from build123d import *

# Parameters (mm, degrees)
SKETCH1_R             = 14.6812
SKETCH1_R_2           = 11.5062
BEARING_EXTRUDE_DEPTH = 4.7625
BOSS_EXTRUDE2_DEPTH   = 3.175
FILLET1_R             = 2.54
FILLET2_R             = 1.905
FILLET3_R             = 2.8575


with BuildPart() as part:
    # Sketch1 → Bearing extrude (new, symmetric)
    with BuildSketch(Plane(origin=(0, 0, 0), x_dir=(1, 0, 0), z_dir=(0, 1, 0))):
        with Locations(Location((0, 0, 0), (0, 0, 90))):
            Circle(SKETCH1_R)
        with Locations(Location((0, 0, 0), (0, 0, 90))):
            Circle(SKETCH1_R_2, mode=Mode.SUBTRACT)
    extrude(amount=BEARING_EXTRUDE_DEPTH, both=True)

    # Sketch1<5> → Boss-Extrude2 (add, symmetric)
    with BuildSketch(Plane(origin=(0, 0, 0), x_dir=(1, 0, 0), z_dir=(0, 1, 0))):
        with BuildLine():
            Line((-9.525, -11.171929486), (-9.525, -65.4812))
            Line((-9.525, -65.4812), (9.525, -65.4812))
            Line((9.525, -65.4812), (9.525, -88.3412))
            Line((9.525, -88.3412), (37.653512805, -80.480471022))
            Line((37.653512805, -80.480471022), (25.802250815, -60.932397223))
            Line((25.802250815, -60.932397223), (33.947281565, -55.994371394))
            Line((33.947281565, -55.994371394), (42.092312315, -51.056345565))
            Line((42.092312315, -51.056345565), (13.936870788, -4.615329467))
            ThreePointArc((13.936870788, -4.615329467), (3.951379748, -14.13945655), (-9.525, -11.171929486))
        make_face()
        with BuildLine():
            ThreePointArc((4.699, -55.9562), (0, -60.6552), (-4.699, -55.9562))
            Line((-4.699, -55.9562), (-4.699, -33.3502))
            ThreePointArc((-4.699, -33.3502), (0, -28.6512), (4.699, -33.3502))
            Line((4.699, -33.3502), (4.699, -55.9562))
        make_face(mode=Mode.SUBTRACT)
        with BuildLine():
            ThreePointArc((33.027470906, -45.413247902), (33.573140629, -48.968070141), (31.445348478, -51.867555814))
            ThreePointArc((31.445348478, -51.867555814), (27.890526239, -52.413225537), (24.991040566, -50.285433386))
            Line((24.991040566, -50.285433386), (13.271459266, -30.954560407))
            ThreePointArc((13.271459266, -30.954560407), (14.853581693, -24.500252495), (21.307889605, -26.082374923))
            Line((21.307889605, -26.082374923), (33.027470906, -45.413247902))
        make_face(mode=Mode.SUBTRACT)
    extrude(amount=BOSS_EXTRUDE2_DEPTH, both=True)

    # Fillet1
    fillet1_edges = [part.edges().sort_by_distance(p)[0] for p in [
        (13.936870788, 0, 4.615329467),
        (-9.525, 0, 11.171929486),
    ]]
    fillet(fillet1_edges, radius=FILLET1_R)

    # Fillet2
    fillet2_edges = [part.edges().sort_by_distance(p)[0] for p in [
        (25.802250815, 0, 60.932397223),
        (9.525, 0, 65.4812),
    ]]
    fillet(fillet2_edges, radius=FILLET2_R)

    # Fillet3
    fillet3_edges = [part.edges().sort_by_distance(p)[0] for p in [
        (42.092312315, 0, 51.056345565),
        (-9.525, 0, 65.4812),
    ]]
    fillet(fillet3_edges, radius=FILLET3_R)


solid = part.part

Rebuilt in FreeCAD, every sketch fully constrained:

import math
import FreeCAD as App
import Part
import Sketcher
Q = App.Units.Quantity


def edges_at(feature, points):
    """Names of the edges that pass closest to the given points."""
    edges = feature.Shape.Edges
    near = lambda p: min(range(len(edges)), key=lambda i: edges[i].distToShape(Part.Vertex(*p))[0])
    return sorted({f"Edge{near(p) + 1}" for p in points})

doc = App.newDocument("Part")
params = doc.addObject("Spreadsheet::Sheet", "Params")
for row, (alias, value) in enumerate([
    ("sketch1_diameter", "1.156 in"),
    ("sketch1_diameter2", "0.906 in"),
    ("pad1_length", "0.375 in"),
    ("sketch2_height", "0.9 in"),
    ("sketch2_radius", "0.578 in"),
    ("sketch2_radius2", "0.185 in"),
    ("sketch2_length", "0.9 in"),
    ("sketch2_width", "0.75 in"),
    ("pad2_length", "0.25 in"),
    ("fillet_radius", "0.1 in"),
    ("fillet2_radius", "0.075 in"),
    ("fillet3_radius", "0.1125 in"),
], start=1):
    params.set(f"A{row}", alias)
    params.set(f"B{row}", "=" + value)
    params.setAlias(f"B{row}", alias)

body = doc.addObject("PartDesign::Body", "Body")

sketch1 = doc.addObject("Sketcher::SketchObject", "Sketch")
body.addObject(sketch1)
sketch1.AttachmentSupport = (doc.XZ_Plane, [""])
sketch1.MapMode = "FlatFace"
sketch1.addGeometry([
    Part.Circle(App.Vector(0, 0, 0), App.Vector(0, 0, 1), 14.6812),
    Part.Circle(App.Vector(0, 0, 0), App.Vector(0, 0, 1), 11.5062),
], False)
sketch1.addConstraint([
    Sketcher.Constraint("Coincident", 0, 3, -1, 1),
    Sketcher.Constraint("Coincident", 1, 3, -1, 1),
    Sketcher.Constraint("Diameter", 0, Q("1.156 in")),
    Sketcher.Constraint("Diameter", 1, Q("0.906 in")),
])
sketch1.setExpression("Constraints[2]", "Params.sketch1_diameter")
sketch1.setExpression("Constraints[3]", "Params.sketch1_diameter2")
pad1 = doc.addObject("PartDesign::Pad", "Pad")
body.addObject(pad1)
pad1.Profile = sketch1
pad1.setExpression("Length", "Params.pad1_length")
pad1.Midplane = True

sketch2 = doc.addObject("Sketcher::SketchObject", "Sketch001")
body.addObject(sketch2)
sketch2.AttachmentSupport = (doc.XZ_Plane, [""])
sketch2.MapMode = "FlatFace"
sketch2.addGeometry([
    Part.LineSegment(App.Vector(-9.525, 11.171929, 0), App.Vector(-9.525, 65.4812, 0)),
    Part.LineSegment(App.Vector(-9.525, 65.4812, 0), App.Vector(9.525, 65.4812, 0)),
    Part.LineSegment(App.Vector(9.525, 65.4812, 0), App.Vector(9.525, 88.3412, 0)),
    Part.LineSegment(App.Vector(9.525, 88.3412, 0), App.Vector(37.653513, 80.480471, 0)),
    Part.LineSegment(App.Vector(37.653513, 80.480471, 0), App.Vector(25.802251, 60.932397, 0)),
    Part.LineSegment(App.Vector(25.802251, 60.932397, 0), App.Vector(42.092312, 51.056346, 0)),
    Part.LineSegment(App.Vector(42.092312, 51.056346, 0), App.Vector(13.936871, 4.615329, 0)),
    Part.ArcOfCircle(Part.Circle(App.Vector(0, 0, 0), App.Vector(0, 0, 1), 14.6812), math.radians(18.322788), math.radians(130.450354)),
    Part.LineSegment(App.Vector(4.699, 33.3502, 0), App.Vector(4.699, 55.9562, 0)),
    Part.ArcOfCircle(Part.Circle(App.Vector(0, 55.9562, 0), App.Vector(0, 0, 1), 4.699), math.radians(0), math.radians(180)),
    Part.LineSegment(App.Vector(-4.699, 55.9562, 0), App.Vector(-4.699, 33.3502, 0)),
    Part.ArcOfCircle(Part.Circle(App.Vector(0, 33.3502, 0), App.Vector(0, 0, 1), 4.699), math.radians(180), math.radians(360)),
    Part.LineSegment(App.Vector(21.30789, 26.082375, 0), App.Vector(33.027471, 45.413248, 0)),
    Part.ArcOfCircle(Part.Circle(App.Vector(29.009256, 47.849341, 0), App.Vector(0, 0, 1), 4.699), math.radians(-31.226858), math.radians(58.773142)),
    Part.ArcOfCircle(Part.Circle(App.Vector(29.009256, 47.849341, 0), App.Vector(0, 0, 1), 4.699), math.radians(58.773142), math.radians(148.773142)),
    Part.LineSegment(App.Vector(24.991041, 50.285433, 0), App.Vector(13.271459, 30.95456, 0)),
    Part.ArcOfCircle(Part.Circle(App.Vector(17.289674, 28.518468, 0), App.Vector(0, 0, 1), 4.699), math.radians(148.773142), math.radians(328.773142)),
], False)
sketch2.addConstraint([
    Sketcher.Constraint("Coincident", 0, 2, 1, 1),
    Sketcher.Constraint("Coincident", 1, 2, 2, 1),
    Sketcher.Constraint("Coincident", 2, 2, 3, 1),
    Sketcher.Constraint("Coincident", 3, 2, 4, 1),
    Sketcher.Constraint("Coincident", 4, 2, 5, 1),
    Sketcher.Constraint("Coincident", 5, 2, 6, 1),
    Sketcher.Constraint("Coincident", 6, 2, 7, 1),
    Sketcher.Constraint("Coincident", 7, 2, 0, 1),
    Sketcher.Constraint("Tangent", 8, 2, 9, 1),
    Sketcher.Constraint("Tangent", 9, 2, 10, 1),
    Sketcher.Constraint("Tangent", 10, 2, 11, 1),
    Sketcher.Constraint("Tangent", 11, 2, 8, 1),
    Sketcher.Constraint("Tangent", 12, 2, 13, 1),
    Sketcher.Constraint("Tangent", 13, 2, 14, 1),
    Sketcher.Constraint("Tangent", 14, 2, 15, 1),
    Sketcher.Constraint("Tangent", 15, 2, 16, 1),
    Sketcher.Constraint("Tangent", 16, 2, 12, 1),
    Sketcher.Constraint("Vertical", 0),
    Sketcher.Constraint("Horizontal", 1),
    Sketcher.Constraint("Vertical", 2),
    Sketcher.Constraint("Vertical", 8),
    Sketcher.Constraint("Vertical", 10),
    Sketcher.Constraint("Coincident", 7, 3, -1, 1),
    Sketcher.Constraint("Equal", 11, 13),
    Sketcher.Constraint("Equal", 13, 14),
    Sketcher.Constraint("Equal", 14, 16),
    Sketcher.Constraint("PointOnObject", 9, 3, -2),
    Sketcher.Constraint("Perpendicular", 4, 5),
    Sketcher.Constraint("Perpendicular", 5, 6),
    Sketcher.Constraint("Parallel", 6, 12),
    Sketcher.Constraint("DistanceY", 2, 1, 2, 2, Q("0.9 in")),
    Sketcher.Constraint("Radius", 7, Q("0.578 in")),
    Sketcher.Constraint("Radius", 9, Q("0.185 in")),
    Sketcher.Constraint("Distance", 4, Q("0.9 in")),
    Sketcher.Constraint("DistanceX", 1, 1, 1, 2, Q("0.75 in")),
    Sketcher.Constraint("DistanceY", 8, 1, 8, 2, Q("0.89 in")),
    Sketcher.Constraint("Distance", 5, Q("0.75 in")),
    Sketcher.Constraint("Distance", 12, Q("0.89 in")),
    Sketcher.Constraint("DistanceX", 8, 2, 1, 2, Q("0.19 in")),
    Sketcher.Constraint("DistanceY", -1, 1, 9, 3, Q("2.203 in")),
    Sketcher.Constraint("DistanceY", -1, 1, 0, 2, Q("2.578 in")),
    Sketcher.Constraint("DistanceX", 6, 2, 16, 3, Q("0.1320001 in")),
    Sketcher.Constraint("DistanceX", 3, 2, 5, 2, 4.4388),
    Sketcher.Constraint("DistanceY", 6, 2, 7, 2, 6.5566),
    Sketcher.Constraint("Distance", 6, 54.309271),
    Sketcher.Constraint("DistanceY", -1, 1, 13, 3, 47.849341),
    Sketcher.Constraint("DistanceX", -1, 1, 13, 2, 31.445348),
])
sketch2.setExpression("Constraints[30]", "Params.sketch2_height")
sketch2.setExpression("Constraints[31]", "Params.sketch2_radius")
sketch2.setExpression("Constraints[32]", "Params.sketch2_radius2")
sketch2.setExpression("Constraints[33]", "Params.sketch2_length")
sketch2.setExpression("Constraints[34]", "Params.sketch2_width")
pad2 = doc.addObject("PartDesign::Pad", "Pad001")
body.addObject(pad2)
pad2.Profile = sketch2
pad2.setExpression("Length", "Params.pad2_length")
pad2.Midplane = True
doc.recompute()

fillet = doc.addObject("PartDesign::Fillet", "Fillet")
body.addObject(fillet)
fillet.Base = (pad2, edges_at(pad2, [(13.937, 0, 4.615), (-9.525, 0, 11.172)]))
fillet.setExpression("Radius", "Params.fillet_radius")
doc.recompute()

fillet2 = doc.addObject("PartDesign::Fillet", "Fillet001")
body.addObject(fillet2)
fillet2.Base = (fillet, edges_at(fillet, [(25.802, 0, 60.932), (9.525, 0, 65.481)]))
fillet2.setExpression("Radius", "Params.fillet2_radius")
doc.recompute()

fillet3 = doc.addObject("PartDesign::Fillet", "Fillet002")
body.addObject(fillet3)
fillet3.Base = (fillet2, edges_at(fillet2, [(42.092, 0, 51.056), (-9.525, 0, 65.481)]))
fillet3.setExpression("Radius", "Params.fillet3_radius")

doc.recompute()
